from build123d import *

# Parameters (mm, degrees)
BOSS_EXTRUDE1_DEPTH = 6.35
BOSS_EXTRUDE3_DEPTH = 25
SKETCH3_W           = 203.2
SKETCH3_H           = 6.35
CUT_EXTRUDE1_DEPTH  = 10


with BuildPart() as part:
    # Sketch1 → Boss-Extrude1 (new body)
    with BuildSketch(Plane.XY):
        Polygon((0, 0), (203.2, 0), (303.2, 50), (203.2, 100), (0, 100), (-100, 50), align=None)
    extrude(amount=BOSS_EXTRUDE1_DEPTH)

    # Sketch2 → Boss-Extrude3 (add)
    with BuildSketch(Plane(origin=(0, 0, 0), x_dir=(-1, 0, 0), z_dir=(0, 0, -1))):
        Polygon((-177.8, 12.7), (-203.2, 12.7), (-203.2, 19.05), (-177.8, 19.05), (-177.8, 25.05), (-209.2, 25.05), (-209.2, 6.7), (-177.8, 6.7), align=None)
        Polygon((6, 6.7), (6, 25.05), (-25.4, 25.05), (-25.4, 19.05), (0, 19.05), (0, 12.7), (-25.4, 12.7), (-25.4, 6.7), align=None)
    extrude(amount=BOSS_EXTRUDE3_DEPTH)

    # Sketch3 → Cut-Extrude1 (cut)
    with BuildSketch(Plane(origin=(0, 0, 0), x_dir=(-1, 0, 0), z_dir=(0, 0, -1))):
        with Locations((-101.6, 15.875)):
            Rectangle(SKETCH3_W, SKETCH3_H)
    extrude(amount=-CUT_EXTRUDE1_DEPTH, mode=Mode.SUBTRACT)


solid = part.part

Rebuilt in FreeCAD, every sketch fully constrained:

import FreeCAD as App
import Part
import Sketcher


def add_polygon(sketch, points):
    """Adds a closed chain of lines whose ends are joined by coincident constraints."""
    first, n = sketch.GeometryCount, len(points)
    for a, b in zip(points, points[1:] + points[:1]):
        sketch.addGeometry(Part.LineSegment(App.Vector(*a, 0), App.Vector(*b, 0)), False)
    for i in range(n):
        sketch.addConstraint(Sketcher.Constraint("Coincident", first + i, 2, first + (i + 1) % n, 1))

doc = App.newDocument("Part")
body = doc.addObject("PartDesign::Body", "Body")

sketch1 = doc.addObject("Sketcher::SketchObject", "Sketch")
body.addObject(sketch1)
sketch1.AttachmentSupport = (doc.XY_Plane, [""])
sketch1.MapMode = "FlatFace"
add_polygon(sketch1, [(0, 0), (203, 0), (303, 50), (203, 100), (0, 100), (-100, 50)])
sketch1.addConstraint(Sketcher.Constraint("Horizontal", 0))
sketch1.addConstraint(Sketcher.Constraint("Horizontal", 3))
sketch1.addConstraint(Sketcher.Constraint("Coincident", 5, 2, -1, 1))
sketch1.addConstraint(Sketcher.Constraint("PointOnObject", 3, 2, -2))
sketch1.addConstraint(Sketcher.Constraint("Parallel", 1, 4))
sketch1.addConstraint(Sketcher.Constraint("Parallel", 2, 5))
sketch1.addConstraint(Sketcher.Constraint("Horizontal", 1, 2, 4, 2))
sketch1.addConstraint(Sketcher.Constraint("Vertical", 0, 2, 2, 2))
sketch1.addConstraint(Sketcher.Constraint("DistanceX", 0, 1, 0, 2, 203.2))
sketch1.addConstraint(Sketcher.Constraint("DistanceY", -1, 1, 1, 2, 50.0))
sketch1.addConstraint(Sketcher.Constraint("DistanceX", 4, 2, -1, 1, 100.0))
pad1 = doc.addObject("PartDesign::Pad", "Pad")
body.addObject(pad1)
pad1.Profile = sketch1
pad1.Length = 6.35

sketch2 = doc.addObject("Sketcher::SketchObject", "Sketch001")
body.addObject(sketch2)
sketch2.AttachmentSupport = (doc.XY_Plane, [""])
sketch2.MapMode = "FlatFace"
add_polygon(sketch2, [(178, 13), (203, 13), (203, 19), (178, 19), (178, 25), (209, 25), (209, 7), (178, 7)])
add_polygon(sketch2, [(-6, 7), (-6, 25), (25, 25), (25, 19), (0, 19), (0, 13), (25, 13), (25, 7)])
sketch2.addConstraint(Sketcher.Constraint("Horizontal", 0))
sketch2.addConstraint(Sketcher.Constraint("Vertical", 1))
sketch2.addConstraint(Sketcher.Constraint("Horizontal", 2))
sketch2.addConstraint(Sketcher.Constraint("Vertical", 3))
sketch2.addConstraint(Sketcher.Constraint("Horizontal", 4))
sketch2.addConstraint(Sketcher.Constraint("Vertical", 5))
sketch2.addConstraint(Sketcher.Constraint("Horizontal", 6))
sketch2.addConstraint(Sketcher.Constraint("Vertical", 7))
sketch2.addConstraint(Sketcher.Constraint("Vertical", 8))
sketch2.addConstraint(Sketcher.Constraint("Horizontal", 9))
sketch2.addConstraint(Sketcher.Constraint("Vertical", 10))
sketch2.addConstraint(Sketcher.Constraint("Horizontal", 11))
sketch2.addConstraint(Sketcher.Constraint("Vertical", 12))
sketch2.addConstraint(Sketcher.Constraint("Horizontal", 13))
sketch2.addConstraint(Sketcher.Constraint("Vertical", 14))
sketch2.addConstraint(Sketcher.Constraint("Horizontal", 15))
sketch2.addConstraint(Sketcher.Constraint("PointOnObject", 11, 2, -2))
sketch2.addConstraint(Sketcher.Constraint("Horizontal", 4, 2, 8, 2))
sketch2.addConstraint(Sketcher.Constraint("Horizontal", 2, 2, 10, 2))
sketch2.addConstraint(Sketcher.Constraint("Horizontal", 7, 2, 12, 2))
sketch2.addConstraint(Sketcher.Constraint("Horizontal", 6, 2, 14, 2))
sketch2.addConstraint(Sketcher.Constraint("Vertical", 3, 2, 6, 2))
sketch2.addConstraint(Sketcher.Constraint("Vertical", 10, 2, 13, 2))
sketch2.addConstraint(Sketcher.Constraint("Equal", 6, 9))
sketch2.addConstraint(Sketcher.Constraint("Equal", 2, 11))
sketch2.addConstraint(Sketcher.Constraint("Equal", 3, 7))
sketch2.addConstraint(Sketcher.Constraint("DistanceY", 3, 1, 3, 2, 6.0))
sketch2.addConstraint(Sketcher.Constraint("DistanceX", 0, 1, 0, 2, 25.4))
sketch2.addConstraint(Sketcher.Constraint("DistanceX", 4, 1, 4, 2, 31.4))
sketch2.addConstraint(Sketcher.Constraint("DistanceY", 1, 1, 1, 2, 6.35))
sketch2.addConstraint(Sketcher.Constraint("DistanceX", -1, 1, 0, 2, 203.2))
sketch2.addConstraint(Sketcher.Constraint("DistanceY", -1, 1, 0, 2, 12.7))
pad2 = doc.addObject("PartDesign::Pad", "Pad001")
body.addObject(pad2)
pad2.Profile = sketch2
pad2.Length = 25
pad2.Reversed = True

sketch3 = doc.addObject("Sketcher::SketchObject", "Sketch002")
body.addObject(sketch3)
sketch3.AttachmentSupport = (doc.XY_Plane, [""])
sketch3.MapMode = "FlatFace"
add_polygon(sketch3, [(203, 19), (203, 13), (0, 13), (0, 19)])
sketch3.addConstraint(Sketcher.Constraint("Vertical", 0))
sketch3.addConstraint(Sketcher.Constraint("Horizontal", 1))
sketch3.addConstraint(Sketcher.Constraint("Vertical", 2))
sketch3.addConstraint(Sketcher.Constraint("Horizontal", 3))
sketch3.addConstraint(Sketcher.Constraint("PointOnObject", 1, 2, -2))
sketch3.addConstraint(Sketcher.Constraint("DistanceX", 1, 2, 1, 1, 203.2))
sketch3.addConstraint(Sketcher.Constraint("DistanceY", 0, 2, 0, 1, 6.35))
sketch3.addConstraint(Sketcher.Constraint("DistanceY", -1, 1, 0, 2, 12.7))
pocket1 = doc.addObject("PartDesign::Pocket", "Pocket")
body.addObject(pocket1)
pocket1.Profile = sketch3
pocket1.Length = 10
pocket1.Reversed = True

doc.recompute()
